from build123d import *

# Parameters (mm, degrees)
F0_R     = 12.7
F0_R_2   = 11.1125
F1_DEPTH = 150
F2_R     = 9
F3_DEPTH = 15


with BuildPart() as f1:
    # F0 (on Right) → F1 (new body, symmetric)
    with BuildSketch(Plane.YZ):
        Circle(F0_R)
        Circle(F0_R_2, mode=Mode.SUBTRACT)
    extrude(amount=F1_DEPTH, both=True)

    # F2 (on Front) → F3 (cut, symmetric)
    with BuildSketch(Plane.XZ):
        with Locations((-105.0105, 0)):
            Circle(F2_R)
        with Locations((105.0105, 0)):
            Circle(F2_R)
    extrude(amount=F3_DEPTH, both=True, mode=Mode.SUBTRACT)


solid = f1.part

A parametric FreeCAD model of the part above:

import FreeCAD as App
import Part
import Sketcher
Q = App.Units.Quantity

doc = App.newDocument("Part")
params = doc.addObject("Spreadsheet::Sheet", "Params")
for row, (alias, value) in enumerate([
    ("sketch1_diameter", "25.4 mm"),
    ("pad1_length", "300 mm"),
    ("sketch2_diameter", "18 mm"),
    ("pocket1_length", "30 mm"),
], start=1):
    params.set(f"A{row}", alias)
    params.set(f"B{row}", "=" + value)
    params.setAlias(f"B{row}", alias)

body = doc.addObject("PartDesign::Body", "Body")

sketch1 = doc.addObject("Sketcher::SketchObject", "Sketch")
body.addObject(sketch1)
sketch1.AttachmentSupport = (doc.YZ_Plane, [""])
sketch1.MapMode = "FlatFace"
sketch1.addGeometry(Part.Circle(App.Vector(0, 0, 0), App.Vector(0, 0, 1), 13), False)
sketch1.addGeometry(Part.Circle(App.Vector(0, 0, 0), App.Vector(0, 0, 1), 11), False)
sketch1.addConstraint(Sketcher.Constraint("Coincident", 0, 3, -1, 1))
sketch1.addConstraint(Sketcher.Constraint("Coincident", 1, 3, -1, 1))
sketch1.addConstraint(Sketcher.Constraint("Diameter", 0, Q("25.4 mm")))
sketch1.addConstraint(Sketcher.Constraint("Diameter", 1, Q("22.225 mm")))
sketch1.setExpression("Constraints[2]", "Params.sketch1_diameter")
pad1 = doc.addObject("PartDesign::Pad", "Pad")
body.addObject(pad1)
pad1.Profile = sketch1
pad1.setExpression("Length", "Params.pad1_length")
pad1.Midplane = True

sketch2 = doc.addObject("Sketcher::SketchObject", "Sketch001")
body.addObject(sketch2)
sketch2.AttachmentSupport = (doc.XZ_Plane, [""])
sketch2.MapMode = "FlatFace"
sketch2.addGeometry(Part.Circle(App.Vector(-105, 0, 0), App.Vector(0, 0, 1), 9), False)
sketch2.addGeometry(Part.Circle(App.Vector(105, 0, 0), App.Vector(0, 0, 1), 9), False)
sketch2.addConstraint(Sketcher.Constraint("Equal", 0, 1))
sketch2.addConstraint(Sketcher.Constraint("Symmetric", 0, 3, 1, 3, -1, 1))
sketch2.addConstraint(Sketcher.Constraint("PointOnObject", 0, 3, -1))
sketch2.addConstraint(Sketcher.Constraint("Diameter", 0, Q("18 mm")))
sketch2.addConstraint(Sketcher.Constraint("DistanceX", 0, 3, 1, 3, Q("210.021 mm")))
sketch2.setExpression("Constraints[3]", "Params.sketch2_diameter")
pocket1 = doc.addObject("PartDesign::Pocket", "Pocket")
body.addObject(pocket1)
pocket1.Profile = sketch2
pocket1.setExpression("Length", "Params.pocket1_length")
pocket1.Midplane = True

doc.recompute()
